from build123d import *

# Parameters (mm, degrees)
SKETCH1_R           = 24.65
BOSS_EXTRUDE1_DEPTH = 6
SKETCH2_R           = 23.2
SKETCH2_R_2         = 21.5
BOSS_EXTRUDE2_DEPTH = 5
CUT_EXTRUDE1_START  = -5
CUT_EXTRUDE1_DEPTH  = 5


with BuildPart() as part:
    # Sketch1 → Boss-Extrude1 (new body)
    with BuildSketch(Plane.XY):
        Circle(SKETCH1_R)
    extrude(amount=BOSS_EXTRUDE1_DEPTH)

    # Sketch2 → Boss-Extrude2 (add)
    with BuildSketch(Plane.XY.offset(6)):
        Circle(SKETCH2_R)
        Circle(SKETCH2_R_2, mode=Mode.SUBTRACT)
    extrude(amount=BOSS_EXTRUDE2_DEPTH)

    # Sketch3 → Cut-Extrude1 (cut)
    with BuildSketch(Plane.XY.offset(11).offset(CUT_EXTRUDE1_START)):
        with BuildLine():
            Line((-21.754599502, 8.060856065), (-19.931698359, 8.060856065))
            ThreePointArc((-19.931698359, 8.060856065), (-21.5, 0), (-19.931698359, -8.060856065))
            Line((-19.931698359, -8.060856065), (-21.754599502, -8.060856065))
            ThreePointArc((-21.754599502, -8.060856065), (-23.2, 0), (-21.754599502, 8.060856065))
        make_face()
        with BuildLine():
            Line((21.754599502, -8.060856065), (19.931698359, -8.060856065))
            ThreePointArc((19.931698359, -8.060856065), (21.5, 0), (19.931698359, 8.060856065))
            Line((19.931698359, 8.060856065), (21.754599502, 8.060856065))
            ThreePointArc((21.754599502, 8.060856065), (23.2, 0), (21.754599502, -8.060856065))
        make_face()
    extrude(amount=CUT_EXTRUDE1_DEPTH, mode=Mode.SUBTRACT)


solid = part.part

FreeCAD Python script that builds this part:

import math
import FreeCAD as App
import Part
import Sketcher

doc = App.newDocument("Part")
body = doc.addObject("PartDesign::Body", "Body")

sketch1 = body.newObject("Sketcher::SketchObject", "Sketch")
sketch1.AttachmentSupport = (doc.getObject("XY_Plane"), [""])
sketch1.MapMode = "FlatFace"
sketch1.addGeometry(Part.Circle(App.Vector(0, 0, 0), App.Vector(0, 0, 1), 25), False)
sketch1.addConstraint([
    Sketcher.Constraint("Coincident", 0, 3, -1, 1),
    Sketcher.Constraint("Diameter", 0, 49.3),
])
pad1 = body.newObject("PartDesign::Pad", "Pad")
pad1.Profile = sketch1
pad1.Length = 6

sketch2 = body.newObject("Sketcher::SketchObject", "Sketch001")
sketch2.AttachmentSupport = (doc.getObject("XY_Plane"), [""])
sketch2.MapMode = "FlatFace"
sketch2.AttachmentOffset = App.Placement(App.Vector(0, 0, 6), App.Rotation())
sketch2.addGeometry([
    Part.Circle(App.Vector(0, 0, 0), App.Vector(0, 0, 1), 23),
    Part.Circle(App.Vector(0, 0, 0), App.Vector(0, 0, 1), 22),
], False)
sketch2.addConstraint([
    Sketcher.Constraint("Coincident", 0, 3, -1, 1),
    Sketcher.Constraint("Coincident", 1, 3, -1, 1),
    Sketcher.Constraint("Diameter", 1, 43.0),
    Sketcher.Constraint("Diameter", 0, 46.4),
])
pad2 = body.newObject("PartDesign::Pad", "Pad001")
pad2.Profile = sketch2
pad2.Length = 5

sketch3 = body.newObject("Sketcher::SketchObject", "Sketch002")
sketch3.AttachmentSupport = (doc.getObject("XY_Plane"), [""])
sketch3.MapMode = "FlatFace"
sketch3.AttachmentOffset = App.Placement(App.Vector(0, 0, 6), App.Rotation())
sketch3.addGeometry([
    Part.LineSegment(App.Vector(-19.9, 8.1, 0), App.Vector(-21.8, 8.1, 0)),
    Part.ArcOfCircle(Part.Circle(App.Vector(0, 0, 0), App.Vector(0, 0, 1), 23.2), math.radians(160), math.radians(200)),
    Part.LineSegment(App.Vector(-21.8, -8.1, 0), App.Vector(-19.9, -8.1, 0)),
    Part.ArcOfCircle(Part.Circle(App.Vector(0, 0, 0), App.Vector(0, 0, 1), 21.5), math.radians(158), math.radians(202)),
    Part.LineSegment(App.Vector(19.9, -8.1, 0), App.Vector(21.8, -8.1, 0)),
    Part.ArcOfCircle(Part.Circle(App.Vector(0, 0, 0), App.Vector(0, 0, 1), 23.2), math.radians(-20), math.radians(20)),
    Part.LineSegment(App.Vector(21.8, 8.1, 0), App.Vector(19.9, 8.1, 0)),
    Part.ArcOfCircle(Part.Circle(App.Vector(0, 0, 0), App.Vector(0, 0, 1), 21.5), math.radians(-22), math.radians(22)),
], False)
sketch3.addConstraint([
    Sketcher.Constraint("Coincident", 0, 2, 1, 1),
    Sketcher.Constraint("Coincident", 1, 2, 2, 1),
    Sketcher.Constraint("Coincident", 2, 2, 3, 2),
    Sketcher.Constraint("Coincident", 3, 1, 0, 1),
    Sketcher.Constraint("Coincident", 4, 2, 5, 1),
    Sketcher.Constraint("Coincident", 5, 2, 6, 1),
    Sketcher.Constraint("Coincident", 6, 2, 7, 2),
    Sketcher.Constraint("Coincident", 7, 1, 4, 1),
    Sketcher.Constraint("Horizontal", 0),
    Sketcher.Constraint("Horizontal", 2),
    Sketcher.Constraint("Horizontal", 4),
    Sketcher.Constraint("Horizontal", 6),
    Sketcher.Constraint("Coincident", 1, 3, -1, 1),
    Sketcher.Constraint("Coincident", 3, 3, -1, 1),
    Sketcher.Constraint("Coincident", 5, 3, -1, 1),
    Sketcher.Constraint("Coincident", 7, 3, -1, 1),
    Sketcher.Constraint("Equal", 1, 5),
    Sketcher.Constraint("Equal", 3, 7),
    Sketcher.Constraint("Horizontal", 2, 2, 4, 2),
    Sketcher.Constraint("Horizontal", 3, 1, 5, 2),
    Sketcher.Constraint("Vertical", 0, 2, 1, 2),
    Sketcher.Constraint("Radius", 1, 23.2),
    Sketcher.Constraint("Radius", 3, 21.5),
    Sketcher.Constraint("DistanceX", 0, 2, 0, 1, 1.822901),
])
pocket1 = body.newObject("PartDesign::Pocket", "Pocket")
pocket1.Profile = sketch3
pocket1.Length = 5
pocket1.Reversed = True

doc.recompute()
